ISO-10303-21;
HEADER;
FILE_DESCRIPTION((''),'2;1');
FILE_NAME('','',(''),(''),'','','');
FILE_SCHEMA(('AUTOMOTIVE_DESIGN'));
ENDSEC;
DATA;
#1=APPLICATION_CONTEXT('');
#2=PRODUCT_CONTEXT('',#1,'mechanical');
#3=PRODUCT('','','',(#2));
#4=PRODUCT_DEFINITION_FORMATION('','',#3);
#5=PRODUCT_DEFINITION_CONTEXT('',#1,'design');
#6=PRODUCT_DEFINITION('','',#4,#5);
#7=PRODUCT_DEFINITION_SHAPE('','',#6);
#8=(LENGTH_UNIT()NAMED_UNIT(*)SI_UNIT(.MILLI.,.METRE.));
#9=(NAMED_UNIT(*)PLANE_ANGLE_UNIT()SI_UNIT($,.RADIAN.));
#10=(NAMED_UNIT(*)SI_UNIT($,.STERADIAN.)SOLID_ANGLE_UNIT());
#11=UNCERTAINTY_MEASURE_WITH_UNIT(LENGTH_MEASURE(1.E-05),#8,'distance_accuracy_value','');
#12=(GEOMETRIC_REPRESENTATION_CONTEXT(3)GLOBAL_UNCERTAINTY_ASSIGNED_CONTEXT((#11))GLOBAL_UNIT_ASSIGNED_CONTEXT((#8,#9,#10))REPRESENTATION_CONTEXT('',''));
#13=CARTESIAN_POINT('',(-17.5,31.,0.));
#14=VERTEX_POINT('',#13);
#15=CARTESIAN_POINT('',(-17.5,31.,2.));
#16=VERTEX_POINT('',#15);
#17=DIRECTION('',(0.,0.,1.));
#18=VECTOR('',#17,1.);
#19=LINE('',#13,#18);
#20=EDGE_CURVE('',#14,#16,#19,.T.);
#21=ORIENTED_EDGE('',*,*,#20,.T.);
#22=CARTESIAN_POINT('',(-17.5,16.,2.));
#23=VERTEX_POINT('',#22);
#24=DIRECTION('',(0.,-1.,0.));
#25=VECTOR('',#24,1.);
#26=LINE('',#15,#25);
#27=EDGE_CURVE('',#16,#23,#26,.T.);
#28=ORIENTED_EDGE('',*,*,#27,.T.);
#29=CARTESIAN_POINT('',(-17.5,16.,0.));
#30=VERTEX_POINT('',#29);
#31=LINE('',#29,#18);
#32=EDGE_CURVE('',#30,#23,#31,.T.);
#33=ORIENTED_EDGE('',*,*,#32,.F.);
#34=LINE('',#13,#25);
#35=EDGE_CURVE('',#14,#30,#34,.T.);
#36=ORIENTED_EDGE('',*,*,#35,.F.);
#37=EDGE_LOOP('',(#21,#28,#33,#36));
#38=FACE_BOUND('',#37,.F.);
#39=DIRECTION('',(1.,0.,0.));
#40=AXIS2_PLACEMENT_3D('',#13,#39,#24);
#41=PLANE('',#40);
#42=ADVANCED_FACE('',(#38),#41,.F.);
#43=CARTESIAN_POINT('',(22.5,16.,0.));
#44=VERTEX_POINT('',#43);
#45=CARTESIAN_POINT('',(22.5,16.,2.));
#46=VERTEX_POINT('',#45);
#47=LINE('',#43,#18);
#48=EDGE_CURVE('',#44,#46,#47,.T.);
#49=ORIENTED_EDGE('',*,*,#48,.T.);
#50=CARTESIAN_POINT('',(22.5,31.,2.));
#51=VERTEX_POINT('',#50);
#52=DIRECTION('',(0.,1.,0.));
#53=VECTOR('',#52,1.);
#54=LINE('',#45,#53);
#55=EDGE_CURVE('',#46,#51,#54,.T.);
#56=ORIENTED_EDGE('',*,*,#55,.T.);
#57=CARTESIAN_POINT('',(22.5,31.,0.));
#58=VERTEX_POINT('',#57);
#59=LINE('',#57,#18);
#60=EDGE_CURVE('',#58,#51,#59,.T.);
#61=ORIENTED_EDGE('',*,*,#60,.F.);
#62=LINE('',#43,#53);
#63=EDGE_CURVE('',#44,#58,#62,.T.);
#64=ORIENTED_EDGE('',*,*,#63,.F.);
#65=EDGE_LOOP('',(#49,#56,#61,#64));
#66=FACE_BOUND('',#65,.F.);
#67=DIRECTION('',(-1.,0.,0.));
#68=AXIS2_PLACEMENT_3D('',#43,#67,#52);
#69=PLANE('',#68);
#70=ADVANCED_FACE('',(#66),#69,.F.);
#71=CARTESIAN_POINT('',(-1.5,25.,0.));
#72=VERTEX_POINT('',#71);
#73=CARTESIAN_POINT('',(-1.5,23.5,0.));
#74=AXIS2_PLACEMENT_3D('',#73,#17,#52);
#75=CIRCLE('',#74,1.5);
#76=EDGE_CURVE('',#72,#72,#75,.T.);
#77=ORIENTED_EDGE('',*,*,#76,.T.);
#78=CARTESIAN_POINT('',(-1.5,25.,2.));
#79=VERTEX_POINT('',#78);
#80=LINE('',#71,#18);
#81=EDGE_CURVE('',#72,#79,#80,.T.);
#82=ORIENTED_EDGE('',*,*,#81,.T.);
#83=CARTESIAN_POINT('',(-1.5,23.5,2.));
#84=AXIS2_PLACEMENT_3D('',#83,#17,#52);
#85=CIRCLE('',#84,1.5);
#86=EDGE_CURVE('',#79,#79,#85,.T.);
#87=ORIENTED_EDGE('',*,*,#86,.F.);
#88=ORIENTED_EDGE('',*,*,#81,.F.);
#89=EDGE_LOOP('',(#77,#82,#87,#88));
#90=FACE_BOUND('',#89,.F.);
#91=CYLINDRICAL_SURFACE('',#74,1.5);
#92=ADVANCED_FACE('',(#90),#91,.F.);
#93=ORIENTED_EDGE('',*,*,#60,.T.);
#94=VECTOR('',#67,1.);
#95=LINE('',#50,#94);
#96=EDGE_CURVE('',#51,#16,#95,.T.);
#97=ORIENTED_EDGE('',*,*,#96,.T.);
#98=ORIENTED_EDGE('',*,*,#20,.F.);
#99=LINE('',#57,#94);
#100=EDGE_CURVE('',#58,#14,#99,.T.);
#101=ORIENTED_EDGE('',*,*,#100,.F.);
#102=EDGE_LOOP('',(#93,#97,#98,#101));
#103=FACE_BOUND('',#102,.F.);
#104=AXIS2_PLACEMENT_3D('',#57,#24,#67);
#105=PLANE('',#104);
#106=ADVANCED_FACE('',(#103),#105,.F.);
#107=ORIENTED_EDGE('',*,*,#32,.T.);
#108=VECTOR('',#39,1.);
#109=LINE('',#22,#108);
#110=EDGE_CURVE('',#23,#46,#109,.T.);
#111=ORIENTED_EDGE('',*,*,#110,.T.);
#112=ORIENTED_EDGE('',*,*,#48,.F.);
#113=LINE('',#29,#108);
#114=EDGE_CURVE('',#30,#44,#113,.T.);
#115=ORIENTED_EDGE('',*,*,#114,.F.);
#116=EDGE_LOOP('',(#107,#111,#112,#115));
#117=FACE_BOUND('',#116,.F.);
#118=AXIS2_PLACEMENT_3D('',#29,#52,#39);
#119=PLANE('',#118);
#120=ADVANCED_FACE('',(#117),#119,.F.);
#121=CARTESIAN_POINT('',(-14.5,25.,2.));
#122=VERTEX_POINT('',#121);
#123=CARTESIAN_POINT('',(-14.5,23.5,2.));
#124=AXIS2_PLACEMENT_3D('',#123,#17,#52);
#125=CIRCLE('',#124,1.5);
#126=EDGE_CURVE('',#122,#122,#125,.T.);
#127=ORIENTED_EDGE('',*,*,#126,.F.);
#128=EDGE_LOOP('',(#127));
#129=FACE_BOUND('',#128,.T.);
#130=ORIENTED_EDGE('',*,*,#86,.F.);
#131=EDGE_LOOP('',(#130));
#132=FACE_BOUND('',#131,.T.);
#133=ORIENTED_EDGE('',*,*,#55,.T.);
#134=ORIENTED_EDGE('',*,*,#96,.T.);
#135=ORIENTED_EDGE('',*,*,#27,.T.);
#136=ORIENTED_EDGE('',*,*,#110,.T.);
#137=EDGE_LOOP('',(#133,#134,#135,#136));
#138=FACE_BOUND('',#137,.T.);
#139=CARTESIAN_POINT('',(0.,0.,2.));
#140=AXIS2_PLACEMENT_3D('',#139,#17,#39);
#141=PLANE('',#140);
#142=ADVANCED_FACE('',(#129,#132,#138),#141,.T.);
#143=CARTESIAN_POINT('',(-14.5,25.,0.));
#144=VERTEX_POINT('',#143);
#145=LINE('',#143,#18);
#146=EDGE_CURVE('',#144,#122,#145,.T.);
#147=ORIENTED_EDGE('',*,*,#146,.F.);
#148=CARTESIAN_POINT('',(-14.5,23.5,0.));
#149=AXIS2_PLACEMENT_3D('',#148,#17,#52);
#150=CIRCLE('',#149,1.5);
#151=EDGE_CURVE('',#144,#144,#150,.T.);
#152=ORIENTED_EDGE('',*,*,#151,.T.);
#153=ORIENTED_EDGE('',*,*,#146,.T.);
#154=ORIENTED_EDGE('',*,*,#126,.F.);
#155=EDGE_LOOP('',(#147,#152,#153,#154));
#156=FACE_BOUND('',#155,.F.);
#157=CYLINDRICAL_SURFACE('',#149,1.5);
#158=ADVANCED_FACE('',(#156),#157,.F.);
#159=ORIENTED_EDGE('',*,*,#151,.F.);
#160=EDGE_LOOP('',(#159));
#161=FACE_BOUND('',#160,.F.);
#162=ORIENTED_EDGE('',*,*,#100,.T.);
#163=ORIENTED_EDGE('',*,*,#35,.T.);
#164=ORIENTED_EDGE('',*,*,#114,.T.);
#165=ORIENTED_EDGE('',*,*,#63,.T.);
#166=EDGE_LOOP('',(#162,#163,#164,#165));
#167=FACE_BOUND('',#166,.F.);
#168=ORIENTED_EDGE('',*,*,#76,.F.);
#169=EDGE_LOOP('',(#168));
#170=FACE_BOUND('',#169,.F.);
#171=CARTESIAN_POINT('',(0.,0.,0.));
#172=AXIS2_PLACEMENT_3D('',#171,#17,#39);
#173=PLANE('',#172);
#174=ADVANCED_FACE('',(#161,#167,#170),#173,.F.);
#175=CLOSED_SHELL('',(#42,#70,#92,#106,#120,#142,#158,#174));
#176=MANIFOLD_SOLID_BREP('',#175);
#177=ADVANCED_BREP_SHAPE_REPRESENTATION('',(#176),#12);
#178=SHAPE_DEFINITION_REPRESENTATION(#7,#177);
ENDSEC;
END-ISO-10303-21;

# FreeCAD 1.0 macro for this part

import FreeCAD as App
import Part
import Sketcher

V = App.Vector
Q = App.Units.Quantity

doc = App.newDocument("Part")
body = doc.addObject("PartDesign::Body", "Body")

# Sketch on XY plane
sketch1 = body.newObject("Sketcher::SketchObject", "Sketch")
sketch1.AttachmentSupport = (doc.getObject("XY_Plane"), [""])
sketch1.MapMode = "FlatFace"
sketch1.addGeometry([
    Part.LineSegment(V(22, 16, 0), V(22, 31, 0)),
    Part.LineSegment(V(22, 31, 0), V(-18, 31, 0)),
    Part.LineSegment(V(-18, 31, 0), V(-18, 16, 0)),
    Part.LineSegment(V(-18, 16, 0), V(22, 16, 0)),
], False)
sketch1.addConstraint([
    Sketcher.Constraint("Coincident", 0, 2, 1, 1),
    Sketcher.Constraint("Coincident", 1, 2, 2, 1),
    Sketcher.Constraint("Coincident", 2, 2, 3, 1),
    Sketcher.Constraint("Coincident", 3, 2, 0, 1),
    Sketcher.Constraint("Vertical", 0),
    Sketcher.Constraint("Horizontal", 1),
    Sketcher.Constraint("Vertical", 2),
    Sketcher.Constraint("Horizontal", 3),
    Sketcher.Constraint("DistanceX", 1, 2, 1, 1, Q("40 mm")),
    Sketcher.Constraint("DistanceY", 0, 1, 0, 2, Q("15 mm")),
    Sketcher.Constraint("DistanceY", -1, 1, 0, 2, Q("31 mm")),
    Sketcher.Constraint("DistanceX", -1, 1, 0, 2, Q("22.5 mm")),
])
pad1 = body.newObject("PartDesign::Pad", "Pad")
pad1.Profile = sketch1
pad1.Length = 2

# Sketch on XY plane
sketch2 = body.newObject("Sketcher::SketchObject", "Sketch001")
sketch2.AttachmentSupport = (doc.getObject("XY_Plane"), [""])
sketch2.MapMode = "FlatFace"
sketch2.addGeometry(Part.Circle(V(-14.5, 23.5, 0), V(0, 0, 1), 1.5), False)
sketch2.addConstraint([
    Sketcher.Constraint("Diameter", 0, Q("3 mm")),
    Sketcher.Constraint("DistanceX", 0, 3, -1, 1, Q("14.5 mm")),
    Sketcher.Constraint("DistanceY", -1, 1, 0, 3, Q("23.5 mm")),
])
doc.recompute()
hole = body.newObject("PartDesign::Hole", "Hole")
hole.Profile = sketch2
hole.ThreadType = "None"
hole.Diameter = 3
hole.DepthType = "ThroughAll"
hole.Reversed = True

# Sketch on XY plane
sketch3 = body.newObject("Sketcher::SketchObject", "Sketch002")
sketch3.AttachmentSupport = (doc.getObject("XY_Plane"), [""])
sketch3.MapMode = "FlatFace"
sketch3.addGeometry(Part.Circle(V(-1.5, 23.5, 0), V(0, 0, 1), 1.5), False)
sketch3.addConstraint([
    Sketcher.Constraint("Diameter", 0, Q("3 mm")),
    Sketcher.Constraint("DistanceX", 0, 3, -1, 1, Q("1.5 mm")),
    Sketcher.Constraint("DistanceY", -1, 1, 0, 3, Q("23.5 mm")),
])
doc.recompute()
hole2 = body.newObject("PartDesign::Hole", "Hole001")
hole2.Profile = sketch3
hole2.ThreadType = "None"
hole2.Diameter = 3
hole2.DepthType = "ThroughAll"
hole2.Reversed = True

doc.recompute()
